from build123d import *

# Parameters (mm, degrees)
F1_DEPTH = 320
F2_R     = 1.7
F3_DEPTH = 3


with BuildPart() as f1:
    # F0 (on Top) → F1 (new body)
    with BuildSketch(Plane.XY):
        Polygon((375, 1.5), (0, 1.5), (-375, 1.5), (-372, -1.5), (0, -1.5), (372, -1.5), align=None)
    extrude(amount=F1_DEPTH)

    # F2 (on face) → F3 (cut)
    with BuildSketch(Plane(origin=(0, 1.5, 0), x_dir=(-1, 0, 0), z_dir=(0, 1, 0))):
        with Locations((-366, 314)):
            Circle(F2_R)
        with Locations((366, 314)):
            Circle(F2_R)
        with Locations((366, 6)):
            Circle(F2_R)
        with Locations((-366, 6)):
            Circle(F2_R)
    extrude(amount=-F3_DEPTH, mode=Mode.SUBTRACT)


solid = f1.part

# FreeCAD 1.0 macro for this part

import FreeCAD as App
import Part
import Sketcher
from FreeCAD import Vector

doc = App.newDocument("Part")
params = doc.addObject("Spreadsheet::Sheet", "Params")
for row, (alias, value) in enumerate([
    ("sketch1_width", "750 mm"),
    ("sketch1_width2", "744 mm"),
    ("pad1_length", "320 mm"),
    ("sketch2_diameter", "3.4 mm"),
    ("pocket1_length", "3 mm"),
], start=1):
    params.set(f"A{row}", alias)
    params.set(f"B{row}", "=" + value)
    params.setAlias(f"B{row}", alias)

body = doc.addObject("PartDesign::Body", "Body")

# Sketch on XY plane
sketch1 = body.newObject("Sketcher::SketchObject", "Sketch")
sketch1.AttachmentSupport = (doc.getObject("XY_Plane"), [""])
sketch1.MapMode = "FlatFace"
sketch1.addGeometry([
    Part.LineSegment(Vector(375, 1.5, 0), Vector(-375, 1.5, 0)),
    Part.LineSegment(Vector(-375, 1.5, 0), Vector(-372, -1.5, 0)),
    Part.LineSegment(Vector(-372, -1.5, 0), Vector(372, -1.5, 0)),
    Part.LineSegment(Vector(372, -1.5, 0), Vector(375, 1.5, 0)),
], False)
sketch1.addConstraint([
    Sketcher.Constraint("Coincident", 0, 2, 1, 1),
    Sketcher.Constraint("Coincident", 1, 2, 2, 1),
    Sketcher.Constraint("Coincident", 2, 2, 3, 1),
    Sketcher.Constraint("Coincident", 3, 2, 0, 1),
    Sketcher.Constraint("Horizontal", 0),
    Sketcher.Constraint("Horizontal", 2),
    Sketcher.Constraint("Perpendicular", 1, 3),
    Sketcher.Constraint("Equal", 1, 3),
    Sketcher.Constraint("DistanceX", 0, 2, 0, 1, 750.0),
    Sketcher.Constraint("DistanceX", 2, 1, 2, 2, 744.0),
    Sketcher.Constraint("DistanceX", 0, 2, -1, 1, 375.0),
    Sketcher.Constraint("DistanceY", -1, 1, 0, 2, 1.5),
])
sketch1.setExpression("Constraints[8]", "Params.sketch1_width")
sketch1.setExpression("Constraints[9]", "Params.sketch1_width2")
pad1 = body.newObject("PartDesign::Pad", "Pad")
pad1.Profile = sketch1
pad1.setExpression("Length", "Params.pad1_length")

# Sketch on XZ plane
sketch2 = body.newObject("Sketcher::SketchObject", "Sketch001")
sketch2.AttachmentSupport = (doc.getObject("XZ_Plane"), [""])
sketch2.MapMode = "FlatFace"
sketch2.AttachmentOffset = App.Placement(Vector(0, 0, -1.5), App.Rotation())
sketch2.addGeometry([
    Part.Circle(Vector(366, 314, 0), Vector(0, 0, 1), 1.7),
    Part.Circle(Vector(-366, 314, 0), Vector(0, 0, 1), 1.7),
    Part.Circle(Vector(-366, 6, 0), Vector(0, 0, 1), 1.7),
    Part.Circle(Vector(366, 6, 0), Vector(0, 0, 1), 1.7),
], False)
sketch2.addConstraint([
    Sketcher.Constraint("Equal", 0, 1),
    Sketcher.Constraint("Equal", 1, 2),
    Sketcher.Constraint("Equal", 2, 3),
    Sketcher.Constraint("Symmetric", 0, 3, 1, 3, -2),
    Sketcher.Constraint("Symmetric", 2, 3, 3, 3, -2),
    Sketcher.Constraint("Vertical", 1, 3, 2, 3),
    Sketcher.Constraint("Diameter", 0, 3.4),
    Sketcher.Constraint("DistanceX", -1, 1, 0, 3, 366.0),
    Sketcher.Constraint("DistanceY", -1, 1, 0, 3, 314.0),
    Sketcher.Constraint("DistanceY", -1, 1, 2, 3, 6.0),
])
sketch2.setExpression("Constraints[6]", "Params.sketch2_diameter")
pocket1 = body.newObject("PartDesign::Pocket", "Pocket")
pocket1.Profile = sketch2
pocket1.setExpression("Length", "Params.pocket1_length")
pocket1.Reversed = True

doc.recompute()
